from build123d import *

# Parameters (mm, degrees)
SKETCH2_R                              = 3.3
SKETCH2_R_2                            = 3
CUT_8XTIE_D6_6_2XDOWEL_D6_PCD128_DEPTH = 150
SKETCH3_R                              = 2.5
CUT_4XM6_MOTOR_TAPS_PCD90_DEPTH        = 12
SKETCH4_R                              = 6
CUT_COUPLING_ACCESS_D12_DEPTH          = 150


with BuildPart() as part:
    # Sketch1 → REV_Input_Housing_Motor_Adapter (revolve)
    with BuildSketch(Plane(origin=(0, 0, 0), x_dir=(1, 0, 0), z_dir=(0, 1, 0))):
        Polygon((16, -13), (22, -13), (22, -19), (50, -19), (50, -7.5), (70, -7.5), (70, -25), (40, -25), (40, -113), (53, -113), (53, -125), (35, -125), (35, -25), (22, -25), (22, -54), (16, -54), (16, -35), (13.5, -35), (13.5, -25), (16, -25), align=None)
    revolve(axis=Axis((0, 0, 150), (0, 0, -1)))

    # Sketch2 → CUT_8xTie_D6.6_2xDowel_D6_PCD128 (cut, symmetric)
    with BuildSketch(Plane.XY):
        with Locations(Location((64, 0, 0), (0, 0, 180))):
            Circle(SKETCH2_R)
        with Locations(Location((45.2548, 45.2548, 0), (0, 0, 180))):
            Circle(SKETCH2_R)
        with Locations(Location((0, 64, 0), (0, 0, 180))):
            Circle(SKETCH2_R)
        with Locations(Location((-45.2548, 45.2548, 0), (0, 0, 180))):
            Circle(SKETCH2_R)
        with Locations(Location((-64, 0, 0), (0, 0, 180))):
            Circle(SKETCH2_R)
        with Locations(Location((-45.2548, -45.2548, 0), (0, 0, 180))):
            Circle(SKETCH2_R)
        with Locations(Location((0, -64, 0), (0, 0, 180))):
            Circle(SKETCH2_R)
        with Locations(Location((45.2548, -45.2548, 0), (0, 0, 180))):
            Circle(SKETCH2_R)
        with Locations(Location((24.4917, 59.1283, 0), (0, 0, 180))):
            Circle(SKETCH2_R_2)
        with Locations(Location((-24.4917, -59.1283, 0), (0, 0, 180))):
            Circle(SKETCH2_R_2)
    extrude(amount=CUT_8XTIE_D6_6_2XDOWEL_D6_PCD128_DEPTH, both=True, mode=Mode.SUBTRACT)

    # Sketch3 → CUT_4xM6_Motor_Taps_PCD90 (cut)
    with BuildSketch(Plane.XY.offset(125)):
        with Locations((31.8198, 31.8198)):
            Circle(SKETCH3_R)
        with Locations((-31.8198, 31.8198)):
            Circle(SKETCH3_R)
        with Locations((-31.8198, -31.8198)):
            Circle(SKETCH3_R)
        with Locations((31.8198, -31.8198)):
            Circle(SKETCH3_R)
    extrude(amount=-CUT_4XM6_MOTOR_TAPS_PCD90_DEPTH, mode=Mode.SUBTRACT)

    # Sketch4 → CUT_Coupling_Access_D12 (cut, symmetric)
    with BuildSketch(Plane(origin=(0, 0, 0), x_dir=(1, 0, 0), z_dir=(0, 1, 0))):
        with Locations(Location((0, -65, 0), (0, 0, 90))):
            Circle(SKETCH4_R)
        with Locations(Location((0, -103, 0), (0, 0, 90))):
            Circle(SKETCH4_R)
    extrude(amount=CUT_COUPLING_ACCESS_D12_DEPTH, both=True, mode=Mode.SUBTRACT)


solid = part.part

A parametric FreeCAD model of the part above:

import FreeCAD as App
import Part
import Sketcher

V = App.Vector
Q = App.Units.Quantity


def add_polygon(sketch, points):
    """Adds a closed chain of lines whose ends are joined by coincident constraints."""
    first, n = sketch.GeometryCount, len(points)
    for a, b in zip(points, points[1:] + points[:1]):
        sketch.addGeometry(Part.LineSegment(App.Vector(*a, 0), App.Vector(*b, 0)), False)
    for i in range(n):
        sketch.addConstraint(Sketcher.Constraint("Coincident", first + i, 2, first + (i + 1) % n, 1))

doc = App.newDocument("Part")
body = doc.addObject("PartDesign::Body", "Body")

# Sketch on XZ plane
sketch1 = doc.addObject("Sketcher::SketchObject", "Sketch")
body.addObject(sketch1)
sketch1.AttachmentSupport = (doc.XZ_Plane, [""])
sketch1.MapMode = "FlatFace"
add_polygon(sketch1, [(22, 13), (16, 13), (16, 25), (13.5, 25), (13.5, 35), (16, 35), (16, 54), (22, 54), (22, 25), (35, 25), (35, 125), (53, 125), (53, 113), (40, 113), (40, 25), (70, 25), (70, 7.5), (50, 7.5), (50, 19), (22, 19)])  # lines 0-19
sketch1.addConstraint([
    Sketcher.Constraint("Horizontal", 0),
    Sketcher.Constraint("Vertical", 1),
    Sketcher.Constraint("Horizontal", 2),
    Sketcher.Constraint("Vertical", 3),
    Sketcher.Constraint("Horizontal", 4),
    Sketcher.Constraint("Vertical", 5),
    Sketcher.Constraint("Horizontal", 6),
    Sketcher.Constraint("Vertical", 7),
    Sketcher.Constraint("Horizontal", 8),
    Sketcher.Constraint("Vertical", 9),
    Sketcher.Constraint("Horizontal", 10),
    Sketcher.Constraint("Vertical", 11),
    Sketcher.Constraint("Horizontal", 12),
    Sketcher.Constraint("Vertical", 13),
    Sketcher.Constraint("Horizontal", 14),
    Sketcher.Constraint("Vertical", 15),
    Sketcher.Constraint("Horizontal", 16),
    Sketcher.Constraint("Vertical", 17),
    Sketcher.Constraint("Horizontal", 18),
    Sketcher.Constraint("Vertical", 19),
    Sketcher.Constraint("Horizontal", 2, 2, 7, 2),
    Sketcher.Constraint("Horizontal", 8, 2, 13, 2),
    Sketcher.Constraint("Vertical", 1, 2, 4, 2),
    Sketcher.Constraint("Vertical", 7, 2, 18, 2),
    Sketcher.Constraint("Equal", 8, 12),
    Sketcher.Constraint("Equal", 1, 11),
    Sketcher.Constraint("Equal", 6, 19),
    Sketcher.Constraint("DistanceX", 0, 2, 0, 1, Q("6 mm")),
    Sketcher.Constraint("DistanceX", 8, 1, 8, 2, Q("13 mm")),
    Sketcher.Constraint("DistanceX", 10, 1, 10, 2, Q("18 mm")),
    Sketcher.Constraint("DistanceX", 14, 1, 14, 2, Q("30 mm")),
    Sketcher.Constraint("DistanceX", 16, 2, 16, 1, Q("20 mm")),
    Sketcher.Constraint("DistanceY", 1, 1, 1, 2, Q("12 mm")),
    Sketcher.Constraint("DistanceY", 3, 1, 3, 2, Q("10 mm")),
    Sketcher.Constraint("DistanceY", 5, 1, 5, 2, Q("19 mm")),
    Sketcher.Constraint("DistanceY", 9, 1, 9, 2, Q("100 mm")),
    Sketcher.Constraint("DistanceX", 2, 2, 2, 1, Q("2.5 mm")),
    Sketcher.Constraint("DistanceY", 15, 2, 15, 1, Q("17.5 mm")),
    Sketcher.Constraint("DistanceX", -1, 1, 0, 2, Q("16 mm")),
    Sketcher.Constraint("DistanceY", -1, 1, 0, 2, Q("13 mm")),
])
revolution = doc.addObject("PartDesign::Revolution", "Revolution")
body.addObject(revolution)
revolution.Profile = sketch1
revolution.ReferenceAxis = (sketch1, ["V_Axis"])
revolution.Angle = 360

# Sketch on XY plane
sketch2 = doc.addObject("Sketcher::SketchObject", "Sketch001")
body.addObject(sketch2)
sketch2.AttachmentSupport = (doc.XY_Plane, [""])
sketch2.MapMode = "FlatFace"
sketch2.addGeometry([
    Part.Circle(V(64, 0, 0), V(0, 0, 1), 3.3),  # 0
    Part.Circle(V(45.3, 45.3, 0), V(0, 0, 1), 3.3),  # 1
    Part.Circle(V(0, 64, 0), V(0, 0, 1), 3.3),  # 2
    Part.Circle(V(-45.3, 45.3, 0), V(0, 0, 1), 3.3),  # 3
    Part.Circle(V(-64, 0, 0), V(0, 0, 1), 3.3),  # 4
    Part.Circle(V(-45.3, -45.3, 0), V(0, 0, 1), 3.3),  # 5
    Part.Circle(V(0, -64, 0), V(0, 0, 1), 3.3),  # 6
    Part.Circle(V(45.3, -45.3, 0), V(0, 0, 1), 3.3),  # 7
    Part.Circle(V(24.5, 59.1, 0), V(0, 0, 1), 3),  # 8
    Part.Circle(V(-24.5, -59.1, 0), V(0, 0, 1), 3),  # 9
], False)
sketch2.addConstraint([
    Sketcher.Constraint("Equal", 0, 1),
    Sketcher.Constraint("Equal", 1, 2),
    Sketcher.Constraint("Equal", 2, 3),
    Sketcher.Constraint("Equal", 3, 4),
    Sketcher.Constraint("Equal", 4, 5),
    Sketcher.Constraint("Equal", 5, 6),
    Sketcher.Constraint("Equal", 6, 7),
    Sketcher.Constraint("Equal", 8, 9),
    Sketcher.Constraint("Symmetric", 0, 3, 4, 3, -1, 1),
    Sketcher.Constraint("Symmetric", 1, 3, 5, 3, -1, 1),
    Sketcher.Constraint("Symmetric", 2, 3, 6, 3, -1, 1),
    Sketcher.Constraint("Symmetric", 3, 3, 7, 3, -1, 1),
    Sketcher.Constraint("Symmetric", 8, 3, 9, 3, -1, 1),
    Sketcher.Constraint("Symmetric", 1, 3, 3, 3, -2),
    Sketcher.Constraint("PointOnObject", 0, 3, -1),
    Sketcher.Constraint("PointOnObject", 2, 3, -2),
    Sketcher.Constraint("Diameter", 8, Q("6 mm")),
    Sketcher.Constraint("Diameter", 0, Q("6.6 mm")),
    Sketcher.Constraint("DistanceX", -1, 1, 0, 3, Q("64 mm")),
    Sketcher.Constraint("DistanceY", -1, 1, 2, 3, Q("64 mm")),
    Sketcher.Constraint("DistanceX", -1, 1, 1, 3, Q("45.2548 mm")),
    Sketcher.Constraint("DistanceY", -1, 1, 1, 3, Q("45.2548 mm")),
    Sketcher.Constraint("DistanceX", -1, 1, 8, 3, Q("24.4917 mm")),
    Sketcher.Constraint("DistanceY", -1, 1, 8, 3, Q("59.1283 mm")),
])
pocket1 = doc.addObject("PartDesign::Pocket", "Pocket")
body.addObject(pocket1)
pocket1.Profile = sketch2
pocket1.Length = 300
pocket1.Midplane = True

# Sketch on XY plane
sketch3 = doc.addObject("Sketcher::SketchObject", "Sketch002")
body.addObject(sketch3)
sketch3.AttachmentSupport = (doc.XY_Plane, [""])
sketch3.MapMode = "FlatFace"
sketch3.AttachmentOffset = App.Placement(V(0, 0, 125), App.Rotation())
sketch3.addGeometry([
    Part.Circle(V(31.8, 31.8, 0), V(0, 0, 1), 2.5),
    Part.Circle(V(-31.8, 31.8, 0), V(0, 0, 1), 2.5),
    Part.Circle(V(-31.8, -31.8, 0), V(0, 0, 1), 2.5),
    Part.Circle(V(31.8, -31.8, 0), V(0, 0, 1), 2.5),
], False)
sketch3.addConstraint([
    Sketcher.Constraint("Equal", 0, 1),
    Sketcher.Constraint("Equal", 1, 2),
    Sketcher.Constraint("Equal", 2, 3),
    Sketcher.Constraint("Symmetric", 0, 3, 2, 3, -1, 1),
    Sketcher.Constraint("Symmetric", 1, 3, 3, 3, -1, 1),
    Sketcher.Constraint("Symmetric", 0, 3, 1, 3, -2),
    Sketcher.Constraint("Diameter", 0, Q("5 mm")),
    Sketcher.Constraint("DistanceX", -1, 1, 0, 3, Q("31.8198 mm")),
    Sketcher.Constraint("DistanceY", -1, 1, 0, 3, Q("31.8198 mm")),
])
pocket2 = doc.addObject("PartDesign::Pocket", "Pocket001")
body.addObject(pocket2)
pocket2.Profile = sketch3
pocket2.Length = 12

# Sketch on XZ plane
sketch4 = doc.addObject("Sketcher::SketchObject", "Sketch003")
body.addObject(sketch4)
sketch4.AttachmentSupport = (doc.XZ_Plane, [""])
sketch4.MapMode = "FlatFace"
sketch4.addGeometry([
    Part.Circle(V(0, 65, 0), V(0, 0, 1), 6),
    Part.Circle(V(0, 103, 0), V(0, 0, 1), 6),
], False)
sketch4.addConstraint([
    Sketcher.Constraint("Equal", 0, 1),
    Sketcher.Constraint("PointOnObject", 0, 3, -2),
    Sketcher.Constraint("PointOnObject", 1, 3, -2),
    Sketcher.Constraint("Diameter", 0, Q("12 mm")),
    Sketcher.Constraint("DistanceY", -1, 1, 0, 3, Q("65 mm")),
    Sketcher.Constraint("DistanceY", -1, 1, 1, 3, Q("103 mm")),
])
pocket3 = doc.addObject("PartDesign::Pocket", "Pocket002")
body.addObject(pocket3)
pocket3.Profile = sketch4
pocket3.Length = 300
pocket3.Midplane = True

doc.recompute()
